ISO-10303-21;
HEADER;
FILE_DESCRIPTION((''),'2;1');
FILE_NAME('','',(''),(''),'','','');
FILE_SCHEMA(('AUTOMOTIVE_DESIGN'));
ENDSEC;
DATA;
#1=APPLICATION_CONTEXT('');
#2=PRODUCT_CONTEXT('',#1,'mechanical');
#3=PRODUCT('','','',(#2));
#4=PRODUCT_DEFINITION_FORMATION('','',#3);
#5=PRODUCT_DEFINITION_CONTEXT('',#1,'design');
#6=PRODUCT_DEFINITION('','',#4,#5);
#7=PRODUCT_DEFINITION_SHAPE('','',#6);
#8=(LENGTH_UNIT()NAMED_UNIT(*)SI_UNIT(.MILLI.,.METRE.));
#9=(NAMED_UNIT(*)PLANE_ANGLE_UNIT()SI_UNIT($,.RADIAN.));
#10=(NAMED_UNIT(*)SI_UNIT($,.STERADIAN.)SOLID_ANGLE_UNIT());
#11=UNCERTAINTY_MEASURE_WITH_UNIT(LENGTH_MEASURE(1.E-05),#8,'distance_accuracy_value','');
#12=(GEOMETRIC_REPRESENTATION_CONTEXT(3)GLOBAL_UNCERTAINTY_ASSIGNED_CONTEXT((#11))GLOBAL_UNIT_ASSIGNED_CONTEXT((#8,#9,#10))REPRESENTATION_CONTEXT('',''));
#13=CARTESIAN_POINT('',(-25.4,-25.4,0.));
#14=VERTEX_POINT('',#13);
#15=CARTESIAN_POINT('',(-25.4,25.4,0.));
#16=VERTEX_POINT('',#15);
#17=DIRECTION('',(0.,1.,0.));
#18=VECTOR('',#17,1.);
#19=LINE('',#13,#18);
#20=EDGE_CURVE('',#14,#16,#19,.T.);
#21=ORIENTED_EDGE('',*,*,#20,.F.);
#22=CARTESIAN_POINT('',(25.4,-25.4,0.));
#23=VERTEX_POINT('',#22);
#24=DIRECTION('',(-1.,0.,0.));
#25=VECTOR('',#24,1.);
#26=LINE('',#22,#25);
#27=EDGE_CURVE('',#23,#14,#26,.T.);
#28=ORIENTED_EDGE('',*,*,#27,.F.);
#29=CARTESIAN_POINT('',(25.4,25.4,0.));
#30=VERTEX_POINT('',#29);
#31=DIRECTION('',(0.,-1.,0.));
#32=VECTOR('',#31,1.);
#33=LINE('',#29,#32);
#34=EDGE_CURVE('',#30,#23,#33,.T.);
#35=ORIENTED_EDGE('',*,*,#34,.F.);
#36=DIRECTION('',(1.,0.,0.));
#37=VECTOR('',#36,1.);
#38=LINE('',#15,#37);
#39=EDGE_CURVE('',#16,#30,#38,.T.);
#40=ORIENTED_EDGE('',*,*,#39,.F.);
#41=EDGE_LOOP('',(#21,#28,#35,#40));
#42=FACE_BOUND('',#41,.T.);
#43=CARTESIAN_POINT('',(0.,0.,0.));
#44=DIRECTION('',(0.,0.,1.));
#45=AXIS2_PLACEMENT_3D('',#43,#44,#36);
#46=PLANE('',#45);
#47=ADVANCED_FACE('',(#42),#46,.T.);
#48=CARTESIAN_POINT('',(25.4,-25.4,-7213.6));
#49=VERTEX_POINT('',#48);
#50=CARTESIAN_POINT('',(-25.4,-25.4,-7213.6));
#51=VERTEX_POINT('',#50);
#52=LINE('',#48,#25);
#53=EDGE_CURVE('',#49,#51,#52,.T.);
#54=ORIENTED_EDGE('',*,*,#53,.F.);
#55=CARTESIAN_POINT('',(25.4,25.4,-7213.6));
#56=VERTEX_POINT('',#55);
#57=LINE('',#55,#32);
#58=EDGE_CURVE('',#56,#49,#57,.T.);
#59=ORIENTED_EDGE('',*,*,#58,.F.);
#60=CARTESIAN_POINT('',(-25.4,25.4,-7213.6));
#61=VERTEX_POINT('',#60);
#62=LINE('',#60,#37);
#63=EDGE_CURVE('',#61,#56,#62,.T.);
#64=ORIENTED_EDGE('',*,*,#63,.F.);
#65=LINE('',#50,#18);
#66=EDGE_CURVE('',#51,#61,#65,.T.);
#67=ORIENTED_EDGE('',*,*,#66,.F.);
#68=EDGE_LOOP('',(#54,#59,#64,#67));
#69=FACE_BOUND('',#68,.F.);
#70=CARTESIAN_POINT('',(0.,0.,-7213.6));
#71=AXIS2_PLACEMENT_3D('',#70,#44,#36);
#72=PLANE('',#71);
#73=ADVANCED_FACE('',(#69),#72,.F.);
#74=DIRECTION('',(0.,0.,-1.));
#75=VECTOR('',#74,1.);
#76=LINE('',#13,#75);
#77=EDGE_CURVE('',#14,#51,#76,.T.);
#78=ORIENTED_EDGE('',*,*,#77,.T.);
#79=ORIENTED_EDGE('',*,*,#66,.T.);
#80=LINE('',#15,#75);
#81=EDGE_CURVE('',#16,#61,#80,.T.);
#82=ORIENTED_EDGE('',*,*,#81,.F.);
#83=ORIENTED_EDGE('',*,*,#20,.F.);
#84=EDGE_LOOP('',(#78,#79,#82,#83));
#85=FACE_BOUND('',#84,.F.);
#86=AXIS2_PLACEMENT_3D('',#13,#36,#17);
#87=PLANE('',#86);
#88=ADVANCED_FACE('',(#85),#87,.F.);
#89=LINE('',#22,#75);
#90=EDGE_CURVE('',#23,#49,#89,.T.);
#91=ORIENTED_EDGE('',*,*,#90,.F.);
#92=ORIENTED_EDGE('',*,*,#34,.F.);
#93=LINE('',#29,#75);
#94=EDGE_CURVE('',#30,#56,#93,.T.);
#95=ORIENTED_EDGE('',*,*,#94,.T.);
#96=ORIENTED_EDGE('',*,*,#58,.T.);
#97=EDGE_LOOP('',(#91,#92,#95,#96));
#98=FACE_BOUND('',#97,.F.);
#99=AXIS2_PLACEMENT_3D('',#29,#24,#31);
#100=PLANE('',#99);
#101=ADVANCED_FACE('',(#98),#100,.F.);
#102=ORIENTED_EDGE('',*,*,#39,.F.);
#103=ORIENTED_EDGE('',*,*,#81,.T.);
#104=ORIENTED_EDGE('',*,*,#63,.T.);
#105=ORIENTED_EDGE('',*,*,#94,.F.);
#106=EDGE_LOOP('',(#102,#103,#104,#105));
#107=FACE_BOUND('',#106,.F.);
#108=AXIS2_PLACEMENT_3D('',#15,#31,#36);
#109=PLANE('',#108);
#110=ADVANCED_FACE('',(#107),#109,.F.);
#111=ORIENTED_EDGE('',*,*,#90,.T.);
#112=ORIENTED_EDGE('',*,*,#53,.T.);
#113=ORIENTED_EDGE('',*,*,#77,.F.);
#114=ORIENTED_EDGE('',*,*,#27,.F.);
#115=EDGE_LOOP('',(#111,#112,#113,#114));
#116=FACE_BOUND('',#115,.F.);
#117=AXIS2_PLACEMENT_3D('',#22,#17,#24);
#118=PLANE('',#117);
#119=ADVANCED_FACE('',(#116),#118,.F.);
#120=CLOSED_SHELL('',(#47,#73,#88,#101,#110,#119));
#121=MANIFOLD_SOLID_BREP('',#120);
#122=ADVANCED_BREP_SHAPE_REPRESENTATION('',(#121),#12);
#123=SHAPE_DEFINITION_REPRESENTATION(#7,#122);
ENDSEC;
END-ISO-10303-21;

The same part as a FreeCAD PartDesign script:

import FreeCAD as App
import Part
import Sketcher
Q = App.Units.Quantity

doc = App.newDocument("Part")
body = doc.addObject("PartDesign::Body", "Body")

# Sketch on XY plane
sketch1 = body.newObject("Sketcher::SketchObject", "Sketch")
sketch1.AttachmentSupport = (doc.getObject("XY_Plane"), [""])
sketch1.MapMode = "FlatFace"
sketch1.addGeometry([
    Part.LineSegment(App.Vector(25.4, 25.4, 0), App.Vector(-25.4, 25.4, 0)),
    Part.LineSegment(App.Vector(-25.4, 25.4, 0), App.Vector(-25.4, -25.4, 0)),
    Part.LineSegment(App.Vector(-25.4, -25.4, 0), App.Vector(25.4, -25.4, 0)),
    Part.LineSegment(App.Vector(25.4, -25.4, 0), App.Vector(25.4, 25.4, 0)),
], False)
sketch1.addConstraint([
    Sketcher.Constraint("Coincident", 0, 2, 1, 1),
    Sketcher.Constraint("Coincident", 1, 2, 2, 1),
    Sketcher.Constraint("Coincident", 2, 2, 3, 1),
    Sketcher.Constraint("Coincident", 3, 2, 0, 1),
    Sketcher.Constraint("Horizontal", 0),
    Sketcher.Constraint("Vertical", 1),
    Sketcher.Constraint("Horizontal", 2),
    Sketcher.Constraint("Vertical", 3),
    Sketcher.Constraint("Symmetric", 0, 2, 2, 2, -1, 1),
    Sketcher.Constraint("Equal", 2, 1),
    Sketcher.Constraint("DistanceX", 0, 2, 0, 1, Q("2 in")),
])
pad1 = body.newObject("PartDesign::Pad", "Pad")
pad1.Profile = sketch1
pad1.Length = Q("284 in")
pad1.Reversed = True

doc.recompute()
